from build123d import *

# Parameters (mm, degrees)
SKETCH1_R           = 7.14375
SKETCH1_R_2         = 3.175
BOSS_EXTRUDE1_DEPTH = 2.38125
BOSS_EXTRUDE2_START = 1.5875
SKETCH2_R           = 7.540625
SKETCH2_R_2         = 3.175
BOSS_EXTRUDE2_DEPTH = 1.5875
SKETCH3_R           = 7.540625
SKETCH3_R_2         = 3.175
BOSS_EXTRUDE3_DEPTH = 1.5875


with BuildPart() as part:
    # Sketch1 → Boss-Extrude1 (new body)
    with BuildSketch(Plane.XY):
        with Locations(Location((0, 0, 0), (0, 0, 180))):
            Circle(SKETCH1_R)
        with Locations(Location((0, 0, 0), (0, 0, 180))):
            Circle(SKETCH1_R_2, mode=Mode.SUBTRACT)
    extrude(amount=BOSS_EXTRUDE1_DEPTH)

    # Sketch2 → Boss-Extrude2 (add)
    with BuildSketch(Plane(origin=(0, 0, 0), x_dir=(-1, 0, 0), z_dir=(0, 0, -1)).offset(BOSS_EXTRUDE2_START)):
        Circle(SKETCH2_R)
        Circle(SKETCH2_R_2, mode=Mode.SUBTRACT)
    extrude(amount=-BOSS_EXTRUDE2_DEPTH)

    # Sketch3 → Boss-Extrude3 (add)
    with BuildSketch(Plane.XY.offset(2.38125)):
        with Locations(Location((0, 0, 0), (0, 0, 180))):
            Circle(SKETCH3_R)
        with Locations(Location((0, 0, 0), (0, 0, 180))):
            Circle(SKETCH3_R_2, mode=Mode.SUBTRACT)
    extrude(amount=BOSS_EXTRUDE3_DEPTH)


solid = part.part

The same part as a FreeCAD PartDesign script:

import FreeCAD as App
import Part
import Sketcher
from FreeCAD import Vector
Q = App.Units.Quantity

doc = App.newDocument("Part")
body = doc.addObject("PartDesign::Body", "Body")

# Sketch on XY plane
sketch1 = body.newObject("Sketcher::SketchObject", "Sketch")
sketch1.AttachmentSupport = (doc.getObject("XY_Plane"), [""])
sketch1.MapMode = "FlatFace"
sketch1.addGeometry(Part.Circle(Vector(0, 0, 0), Vector(0, 0, 1), 7.1), False)
sketch1.addGeometry(Part.Circle(Vector(0, 0, 0), Vector(0, 0, 1), 3.2), False)
sketch1.addConstraint(Sketcher.Constraint("Coincident", 0, 3, -1, 1))
sketch1.addConstraint(Sketcher.Constraint("Coincident", 1, 3, -1, 1))
sketch1.addConstraint(Sketcher.Constraint("Diameter", 1, Q("0.25 in")))
sketch1.addConstraint(Sketcher.Constraint("Diameter", 0, Q("0.5625 in")))
pad1 = body.newObject("PartDesign::Pad", "Pad")
pad1.Profile = sketch1
pad1.Length = Q("0.09375 in")

# Sketch on XY plane
sketch2 = body.newObject("Sketcher::SketchObject", "Sketch001")
sketch2.AttachmentSupport = (doc.getObject("XY_Plane"), [""])
sketch2.MapMode = "FlatFace"
sketch2.AttachmentOffset = App.Placement(Vector(0, 0, -0.0625 * 25.4), App.Rotation())
sketch2.addGeometry(Part.Circle(Vector(0, 0, 0), Vector(0, 0, 1), 7.5), False)
sketch2.addGeometry(Part.Circle(Vector(0, 0, 0), Vector(0, 0, 1), 3.2), False)
sketch2.addConstraint(Sketcher.Constraint("Coincident", 0, 3, -1, 1))
sketch2.addConstraint(Sketcher.Constraint("Coincident", 1, 3, -1, 1))
sketch2.addConstraint(Sketcher.Constraint("Diameter", 1, Q("0.25 in")))
sketch2.addConstraint(Sketcher.Constraint("Diameter", 0, Q("0.59375 in")))
pad2 = body.newObject("PartDesign::Pad", "Pad001")
pad2.Profile = sketch2
pad2.Length = Q("0.0625 in")

# Sketch on XY plane
sketch3 = body.newObject("Sketcher::SketchObject", "Sketch002")
sketch3.AttachmentSupport = (doc.getObject("XY_Plane"), [""])
sketch3.MapMode = "FlatFace"
sketch3.AttachmentOffset = App.Placement(Vector(0, 0, 0.09375 * 25.4), App.Rotation())
sketch3.addGeometry(Part.Circle(Vector(0, 0, 0), Vector(0, 0, 1), 7.5), False)
sketch3.addGeometry(Part.Circle(Vector(0, 0, 0), Vector(0, 0, 1), 3.2), False)
sketch3.addConstraint(Sketcher.Constraint("Coincident", 0, 3, -1, 1))
sketch3.addConstraint(Sketcher.Constraint("Coincident", 1, 3, -1, 1))
sketch3.addConstraint(Sketcher.Constraint("Diameter", 1, Q("0.25 in")))
sketch3.addConstraint(Sketcher.Constraint("Diameter", 0, Q("0.59375 in")))
pad3 = body.newObject("PartDesign::Pad", "Pad002")
pad3.Profile = sketch3
pad3.Length = Q("0.0625 in")

doc.recompute()
